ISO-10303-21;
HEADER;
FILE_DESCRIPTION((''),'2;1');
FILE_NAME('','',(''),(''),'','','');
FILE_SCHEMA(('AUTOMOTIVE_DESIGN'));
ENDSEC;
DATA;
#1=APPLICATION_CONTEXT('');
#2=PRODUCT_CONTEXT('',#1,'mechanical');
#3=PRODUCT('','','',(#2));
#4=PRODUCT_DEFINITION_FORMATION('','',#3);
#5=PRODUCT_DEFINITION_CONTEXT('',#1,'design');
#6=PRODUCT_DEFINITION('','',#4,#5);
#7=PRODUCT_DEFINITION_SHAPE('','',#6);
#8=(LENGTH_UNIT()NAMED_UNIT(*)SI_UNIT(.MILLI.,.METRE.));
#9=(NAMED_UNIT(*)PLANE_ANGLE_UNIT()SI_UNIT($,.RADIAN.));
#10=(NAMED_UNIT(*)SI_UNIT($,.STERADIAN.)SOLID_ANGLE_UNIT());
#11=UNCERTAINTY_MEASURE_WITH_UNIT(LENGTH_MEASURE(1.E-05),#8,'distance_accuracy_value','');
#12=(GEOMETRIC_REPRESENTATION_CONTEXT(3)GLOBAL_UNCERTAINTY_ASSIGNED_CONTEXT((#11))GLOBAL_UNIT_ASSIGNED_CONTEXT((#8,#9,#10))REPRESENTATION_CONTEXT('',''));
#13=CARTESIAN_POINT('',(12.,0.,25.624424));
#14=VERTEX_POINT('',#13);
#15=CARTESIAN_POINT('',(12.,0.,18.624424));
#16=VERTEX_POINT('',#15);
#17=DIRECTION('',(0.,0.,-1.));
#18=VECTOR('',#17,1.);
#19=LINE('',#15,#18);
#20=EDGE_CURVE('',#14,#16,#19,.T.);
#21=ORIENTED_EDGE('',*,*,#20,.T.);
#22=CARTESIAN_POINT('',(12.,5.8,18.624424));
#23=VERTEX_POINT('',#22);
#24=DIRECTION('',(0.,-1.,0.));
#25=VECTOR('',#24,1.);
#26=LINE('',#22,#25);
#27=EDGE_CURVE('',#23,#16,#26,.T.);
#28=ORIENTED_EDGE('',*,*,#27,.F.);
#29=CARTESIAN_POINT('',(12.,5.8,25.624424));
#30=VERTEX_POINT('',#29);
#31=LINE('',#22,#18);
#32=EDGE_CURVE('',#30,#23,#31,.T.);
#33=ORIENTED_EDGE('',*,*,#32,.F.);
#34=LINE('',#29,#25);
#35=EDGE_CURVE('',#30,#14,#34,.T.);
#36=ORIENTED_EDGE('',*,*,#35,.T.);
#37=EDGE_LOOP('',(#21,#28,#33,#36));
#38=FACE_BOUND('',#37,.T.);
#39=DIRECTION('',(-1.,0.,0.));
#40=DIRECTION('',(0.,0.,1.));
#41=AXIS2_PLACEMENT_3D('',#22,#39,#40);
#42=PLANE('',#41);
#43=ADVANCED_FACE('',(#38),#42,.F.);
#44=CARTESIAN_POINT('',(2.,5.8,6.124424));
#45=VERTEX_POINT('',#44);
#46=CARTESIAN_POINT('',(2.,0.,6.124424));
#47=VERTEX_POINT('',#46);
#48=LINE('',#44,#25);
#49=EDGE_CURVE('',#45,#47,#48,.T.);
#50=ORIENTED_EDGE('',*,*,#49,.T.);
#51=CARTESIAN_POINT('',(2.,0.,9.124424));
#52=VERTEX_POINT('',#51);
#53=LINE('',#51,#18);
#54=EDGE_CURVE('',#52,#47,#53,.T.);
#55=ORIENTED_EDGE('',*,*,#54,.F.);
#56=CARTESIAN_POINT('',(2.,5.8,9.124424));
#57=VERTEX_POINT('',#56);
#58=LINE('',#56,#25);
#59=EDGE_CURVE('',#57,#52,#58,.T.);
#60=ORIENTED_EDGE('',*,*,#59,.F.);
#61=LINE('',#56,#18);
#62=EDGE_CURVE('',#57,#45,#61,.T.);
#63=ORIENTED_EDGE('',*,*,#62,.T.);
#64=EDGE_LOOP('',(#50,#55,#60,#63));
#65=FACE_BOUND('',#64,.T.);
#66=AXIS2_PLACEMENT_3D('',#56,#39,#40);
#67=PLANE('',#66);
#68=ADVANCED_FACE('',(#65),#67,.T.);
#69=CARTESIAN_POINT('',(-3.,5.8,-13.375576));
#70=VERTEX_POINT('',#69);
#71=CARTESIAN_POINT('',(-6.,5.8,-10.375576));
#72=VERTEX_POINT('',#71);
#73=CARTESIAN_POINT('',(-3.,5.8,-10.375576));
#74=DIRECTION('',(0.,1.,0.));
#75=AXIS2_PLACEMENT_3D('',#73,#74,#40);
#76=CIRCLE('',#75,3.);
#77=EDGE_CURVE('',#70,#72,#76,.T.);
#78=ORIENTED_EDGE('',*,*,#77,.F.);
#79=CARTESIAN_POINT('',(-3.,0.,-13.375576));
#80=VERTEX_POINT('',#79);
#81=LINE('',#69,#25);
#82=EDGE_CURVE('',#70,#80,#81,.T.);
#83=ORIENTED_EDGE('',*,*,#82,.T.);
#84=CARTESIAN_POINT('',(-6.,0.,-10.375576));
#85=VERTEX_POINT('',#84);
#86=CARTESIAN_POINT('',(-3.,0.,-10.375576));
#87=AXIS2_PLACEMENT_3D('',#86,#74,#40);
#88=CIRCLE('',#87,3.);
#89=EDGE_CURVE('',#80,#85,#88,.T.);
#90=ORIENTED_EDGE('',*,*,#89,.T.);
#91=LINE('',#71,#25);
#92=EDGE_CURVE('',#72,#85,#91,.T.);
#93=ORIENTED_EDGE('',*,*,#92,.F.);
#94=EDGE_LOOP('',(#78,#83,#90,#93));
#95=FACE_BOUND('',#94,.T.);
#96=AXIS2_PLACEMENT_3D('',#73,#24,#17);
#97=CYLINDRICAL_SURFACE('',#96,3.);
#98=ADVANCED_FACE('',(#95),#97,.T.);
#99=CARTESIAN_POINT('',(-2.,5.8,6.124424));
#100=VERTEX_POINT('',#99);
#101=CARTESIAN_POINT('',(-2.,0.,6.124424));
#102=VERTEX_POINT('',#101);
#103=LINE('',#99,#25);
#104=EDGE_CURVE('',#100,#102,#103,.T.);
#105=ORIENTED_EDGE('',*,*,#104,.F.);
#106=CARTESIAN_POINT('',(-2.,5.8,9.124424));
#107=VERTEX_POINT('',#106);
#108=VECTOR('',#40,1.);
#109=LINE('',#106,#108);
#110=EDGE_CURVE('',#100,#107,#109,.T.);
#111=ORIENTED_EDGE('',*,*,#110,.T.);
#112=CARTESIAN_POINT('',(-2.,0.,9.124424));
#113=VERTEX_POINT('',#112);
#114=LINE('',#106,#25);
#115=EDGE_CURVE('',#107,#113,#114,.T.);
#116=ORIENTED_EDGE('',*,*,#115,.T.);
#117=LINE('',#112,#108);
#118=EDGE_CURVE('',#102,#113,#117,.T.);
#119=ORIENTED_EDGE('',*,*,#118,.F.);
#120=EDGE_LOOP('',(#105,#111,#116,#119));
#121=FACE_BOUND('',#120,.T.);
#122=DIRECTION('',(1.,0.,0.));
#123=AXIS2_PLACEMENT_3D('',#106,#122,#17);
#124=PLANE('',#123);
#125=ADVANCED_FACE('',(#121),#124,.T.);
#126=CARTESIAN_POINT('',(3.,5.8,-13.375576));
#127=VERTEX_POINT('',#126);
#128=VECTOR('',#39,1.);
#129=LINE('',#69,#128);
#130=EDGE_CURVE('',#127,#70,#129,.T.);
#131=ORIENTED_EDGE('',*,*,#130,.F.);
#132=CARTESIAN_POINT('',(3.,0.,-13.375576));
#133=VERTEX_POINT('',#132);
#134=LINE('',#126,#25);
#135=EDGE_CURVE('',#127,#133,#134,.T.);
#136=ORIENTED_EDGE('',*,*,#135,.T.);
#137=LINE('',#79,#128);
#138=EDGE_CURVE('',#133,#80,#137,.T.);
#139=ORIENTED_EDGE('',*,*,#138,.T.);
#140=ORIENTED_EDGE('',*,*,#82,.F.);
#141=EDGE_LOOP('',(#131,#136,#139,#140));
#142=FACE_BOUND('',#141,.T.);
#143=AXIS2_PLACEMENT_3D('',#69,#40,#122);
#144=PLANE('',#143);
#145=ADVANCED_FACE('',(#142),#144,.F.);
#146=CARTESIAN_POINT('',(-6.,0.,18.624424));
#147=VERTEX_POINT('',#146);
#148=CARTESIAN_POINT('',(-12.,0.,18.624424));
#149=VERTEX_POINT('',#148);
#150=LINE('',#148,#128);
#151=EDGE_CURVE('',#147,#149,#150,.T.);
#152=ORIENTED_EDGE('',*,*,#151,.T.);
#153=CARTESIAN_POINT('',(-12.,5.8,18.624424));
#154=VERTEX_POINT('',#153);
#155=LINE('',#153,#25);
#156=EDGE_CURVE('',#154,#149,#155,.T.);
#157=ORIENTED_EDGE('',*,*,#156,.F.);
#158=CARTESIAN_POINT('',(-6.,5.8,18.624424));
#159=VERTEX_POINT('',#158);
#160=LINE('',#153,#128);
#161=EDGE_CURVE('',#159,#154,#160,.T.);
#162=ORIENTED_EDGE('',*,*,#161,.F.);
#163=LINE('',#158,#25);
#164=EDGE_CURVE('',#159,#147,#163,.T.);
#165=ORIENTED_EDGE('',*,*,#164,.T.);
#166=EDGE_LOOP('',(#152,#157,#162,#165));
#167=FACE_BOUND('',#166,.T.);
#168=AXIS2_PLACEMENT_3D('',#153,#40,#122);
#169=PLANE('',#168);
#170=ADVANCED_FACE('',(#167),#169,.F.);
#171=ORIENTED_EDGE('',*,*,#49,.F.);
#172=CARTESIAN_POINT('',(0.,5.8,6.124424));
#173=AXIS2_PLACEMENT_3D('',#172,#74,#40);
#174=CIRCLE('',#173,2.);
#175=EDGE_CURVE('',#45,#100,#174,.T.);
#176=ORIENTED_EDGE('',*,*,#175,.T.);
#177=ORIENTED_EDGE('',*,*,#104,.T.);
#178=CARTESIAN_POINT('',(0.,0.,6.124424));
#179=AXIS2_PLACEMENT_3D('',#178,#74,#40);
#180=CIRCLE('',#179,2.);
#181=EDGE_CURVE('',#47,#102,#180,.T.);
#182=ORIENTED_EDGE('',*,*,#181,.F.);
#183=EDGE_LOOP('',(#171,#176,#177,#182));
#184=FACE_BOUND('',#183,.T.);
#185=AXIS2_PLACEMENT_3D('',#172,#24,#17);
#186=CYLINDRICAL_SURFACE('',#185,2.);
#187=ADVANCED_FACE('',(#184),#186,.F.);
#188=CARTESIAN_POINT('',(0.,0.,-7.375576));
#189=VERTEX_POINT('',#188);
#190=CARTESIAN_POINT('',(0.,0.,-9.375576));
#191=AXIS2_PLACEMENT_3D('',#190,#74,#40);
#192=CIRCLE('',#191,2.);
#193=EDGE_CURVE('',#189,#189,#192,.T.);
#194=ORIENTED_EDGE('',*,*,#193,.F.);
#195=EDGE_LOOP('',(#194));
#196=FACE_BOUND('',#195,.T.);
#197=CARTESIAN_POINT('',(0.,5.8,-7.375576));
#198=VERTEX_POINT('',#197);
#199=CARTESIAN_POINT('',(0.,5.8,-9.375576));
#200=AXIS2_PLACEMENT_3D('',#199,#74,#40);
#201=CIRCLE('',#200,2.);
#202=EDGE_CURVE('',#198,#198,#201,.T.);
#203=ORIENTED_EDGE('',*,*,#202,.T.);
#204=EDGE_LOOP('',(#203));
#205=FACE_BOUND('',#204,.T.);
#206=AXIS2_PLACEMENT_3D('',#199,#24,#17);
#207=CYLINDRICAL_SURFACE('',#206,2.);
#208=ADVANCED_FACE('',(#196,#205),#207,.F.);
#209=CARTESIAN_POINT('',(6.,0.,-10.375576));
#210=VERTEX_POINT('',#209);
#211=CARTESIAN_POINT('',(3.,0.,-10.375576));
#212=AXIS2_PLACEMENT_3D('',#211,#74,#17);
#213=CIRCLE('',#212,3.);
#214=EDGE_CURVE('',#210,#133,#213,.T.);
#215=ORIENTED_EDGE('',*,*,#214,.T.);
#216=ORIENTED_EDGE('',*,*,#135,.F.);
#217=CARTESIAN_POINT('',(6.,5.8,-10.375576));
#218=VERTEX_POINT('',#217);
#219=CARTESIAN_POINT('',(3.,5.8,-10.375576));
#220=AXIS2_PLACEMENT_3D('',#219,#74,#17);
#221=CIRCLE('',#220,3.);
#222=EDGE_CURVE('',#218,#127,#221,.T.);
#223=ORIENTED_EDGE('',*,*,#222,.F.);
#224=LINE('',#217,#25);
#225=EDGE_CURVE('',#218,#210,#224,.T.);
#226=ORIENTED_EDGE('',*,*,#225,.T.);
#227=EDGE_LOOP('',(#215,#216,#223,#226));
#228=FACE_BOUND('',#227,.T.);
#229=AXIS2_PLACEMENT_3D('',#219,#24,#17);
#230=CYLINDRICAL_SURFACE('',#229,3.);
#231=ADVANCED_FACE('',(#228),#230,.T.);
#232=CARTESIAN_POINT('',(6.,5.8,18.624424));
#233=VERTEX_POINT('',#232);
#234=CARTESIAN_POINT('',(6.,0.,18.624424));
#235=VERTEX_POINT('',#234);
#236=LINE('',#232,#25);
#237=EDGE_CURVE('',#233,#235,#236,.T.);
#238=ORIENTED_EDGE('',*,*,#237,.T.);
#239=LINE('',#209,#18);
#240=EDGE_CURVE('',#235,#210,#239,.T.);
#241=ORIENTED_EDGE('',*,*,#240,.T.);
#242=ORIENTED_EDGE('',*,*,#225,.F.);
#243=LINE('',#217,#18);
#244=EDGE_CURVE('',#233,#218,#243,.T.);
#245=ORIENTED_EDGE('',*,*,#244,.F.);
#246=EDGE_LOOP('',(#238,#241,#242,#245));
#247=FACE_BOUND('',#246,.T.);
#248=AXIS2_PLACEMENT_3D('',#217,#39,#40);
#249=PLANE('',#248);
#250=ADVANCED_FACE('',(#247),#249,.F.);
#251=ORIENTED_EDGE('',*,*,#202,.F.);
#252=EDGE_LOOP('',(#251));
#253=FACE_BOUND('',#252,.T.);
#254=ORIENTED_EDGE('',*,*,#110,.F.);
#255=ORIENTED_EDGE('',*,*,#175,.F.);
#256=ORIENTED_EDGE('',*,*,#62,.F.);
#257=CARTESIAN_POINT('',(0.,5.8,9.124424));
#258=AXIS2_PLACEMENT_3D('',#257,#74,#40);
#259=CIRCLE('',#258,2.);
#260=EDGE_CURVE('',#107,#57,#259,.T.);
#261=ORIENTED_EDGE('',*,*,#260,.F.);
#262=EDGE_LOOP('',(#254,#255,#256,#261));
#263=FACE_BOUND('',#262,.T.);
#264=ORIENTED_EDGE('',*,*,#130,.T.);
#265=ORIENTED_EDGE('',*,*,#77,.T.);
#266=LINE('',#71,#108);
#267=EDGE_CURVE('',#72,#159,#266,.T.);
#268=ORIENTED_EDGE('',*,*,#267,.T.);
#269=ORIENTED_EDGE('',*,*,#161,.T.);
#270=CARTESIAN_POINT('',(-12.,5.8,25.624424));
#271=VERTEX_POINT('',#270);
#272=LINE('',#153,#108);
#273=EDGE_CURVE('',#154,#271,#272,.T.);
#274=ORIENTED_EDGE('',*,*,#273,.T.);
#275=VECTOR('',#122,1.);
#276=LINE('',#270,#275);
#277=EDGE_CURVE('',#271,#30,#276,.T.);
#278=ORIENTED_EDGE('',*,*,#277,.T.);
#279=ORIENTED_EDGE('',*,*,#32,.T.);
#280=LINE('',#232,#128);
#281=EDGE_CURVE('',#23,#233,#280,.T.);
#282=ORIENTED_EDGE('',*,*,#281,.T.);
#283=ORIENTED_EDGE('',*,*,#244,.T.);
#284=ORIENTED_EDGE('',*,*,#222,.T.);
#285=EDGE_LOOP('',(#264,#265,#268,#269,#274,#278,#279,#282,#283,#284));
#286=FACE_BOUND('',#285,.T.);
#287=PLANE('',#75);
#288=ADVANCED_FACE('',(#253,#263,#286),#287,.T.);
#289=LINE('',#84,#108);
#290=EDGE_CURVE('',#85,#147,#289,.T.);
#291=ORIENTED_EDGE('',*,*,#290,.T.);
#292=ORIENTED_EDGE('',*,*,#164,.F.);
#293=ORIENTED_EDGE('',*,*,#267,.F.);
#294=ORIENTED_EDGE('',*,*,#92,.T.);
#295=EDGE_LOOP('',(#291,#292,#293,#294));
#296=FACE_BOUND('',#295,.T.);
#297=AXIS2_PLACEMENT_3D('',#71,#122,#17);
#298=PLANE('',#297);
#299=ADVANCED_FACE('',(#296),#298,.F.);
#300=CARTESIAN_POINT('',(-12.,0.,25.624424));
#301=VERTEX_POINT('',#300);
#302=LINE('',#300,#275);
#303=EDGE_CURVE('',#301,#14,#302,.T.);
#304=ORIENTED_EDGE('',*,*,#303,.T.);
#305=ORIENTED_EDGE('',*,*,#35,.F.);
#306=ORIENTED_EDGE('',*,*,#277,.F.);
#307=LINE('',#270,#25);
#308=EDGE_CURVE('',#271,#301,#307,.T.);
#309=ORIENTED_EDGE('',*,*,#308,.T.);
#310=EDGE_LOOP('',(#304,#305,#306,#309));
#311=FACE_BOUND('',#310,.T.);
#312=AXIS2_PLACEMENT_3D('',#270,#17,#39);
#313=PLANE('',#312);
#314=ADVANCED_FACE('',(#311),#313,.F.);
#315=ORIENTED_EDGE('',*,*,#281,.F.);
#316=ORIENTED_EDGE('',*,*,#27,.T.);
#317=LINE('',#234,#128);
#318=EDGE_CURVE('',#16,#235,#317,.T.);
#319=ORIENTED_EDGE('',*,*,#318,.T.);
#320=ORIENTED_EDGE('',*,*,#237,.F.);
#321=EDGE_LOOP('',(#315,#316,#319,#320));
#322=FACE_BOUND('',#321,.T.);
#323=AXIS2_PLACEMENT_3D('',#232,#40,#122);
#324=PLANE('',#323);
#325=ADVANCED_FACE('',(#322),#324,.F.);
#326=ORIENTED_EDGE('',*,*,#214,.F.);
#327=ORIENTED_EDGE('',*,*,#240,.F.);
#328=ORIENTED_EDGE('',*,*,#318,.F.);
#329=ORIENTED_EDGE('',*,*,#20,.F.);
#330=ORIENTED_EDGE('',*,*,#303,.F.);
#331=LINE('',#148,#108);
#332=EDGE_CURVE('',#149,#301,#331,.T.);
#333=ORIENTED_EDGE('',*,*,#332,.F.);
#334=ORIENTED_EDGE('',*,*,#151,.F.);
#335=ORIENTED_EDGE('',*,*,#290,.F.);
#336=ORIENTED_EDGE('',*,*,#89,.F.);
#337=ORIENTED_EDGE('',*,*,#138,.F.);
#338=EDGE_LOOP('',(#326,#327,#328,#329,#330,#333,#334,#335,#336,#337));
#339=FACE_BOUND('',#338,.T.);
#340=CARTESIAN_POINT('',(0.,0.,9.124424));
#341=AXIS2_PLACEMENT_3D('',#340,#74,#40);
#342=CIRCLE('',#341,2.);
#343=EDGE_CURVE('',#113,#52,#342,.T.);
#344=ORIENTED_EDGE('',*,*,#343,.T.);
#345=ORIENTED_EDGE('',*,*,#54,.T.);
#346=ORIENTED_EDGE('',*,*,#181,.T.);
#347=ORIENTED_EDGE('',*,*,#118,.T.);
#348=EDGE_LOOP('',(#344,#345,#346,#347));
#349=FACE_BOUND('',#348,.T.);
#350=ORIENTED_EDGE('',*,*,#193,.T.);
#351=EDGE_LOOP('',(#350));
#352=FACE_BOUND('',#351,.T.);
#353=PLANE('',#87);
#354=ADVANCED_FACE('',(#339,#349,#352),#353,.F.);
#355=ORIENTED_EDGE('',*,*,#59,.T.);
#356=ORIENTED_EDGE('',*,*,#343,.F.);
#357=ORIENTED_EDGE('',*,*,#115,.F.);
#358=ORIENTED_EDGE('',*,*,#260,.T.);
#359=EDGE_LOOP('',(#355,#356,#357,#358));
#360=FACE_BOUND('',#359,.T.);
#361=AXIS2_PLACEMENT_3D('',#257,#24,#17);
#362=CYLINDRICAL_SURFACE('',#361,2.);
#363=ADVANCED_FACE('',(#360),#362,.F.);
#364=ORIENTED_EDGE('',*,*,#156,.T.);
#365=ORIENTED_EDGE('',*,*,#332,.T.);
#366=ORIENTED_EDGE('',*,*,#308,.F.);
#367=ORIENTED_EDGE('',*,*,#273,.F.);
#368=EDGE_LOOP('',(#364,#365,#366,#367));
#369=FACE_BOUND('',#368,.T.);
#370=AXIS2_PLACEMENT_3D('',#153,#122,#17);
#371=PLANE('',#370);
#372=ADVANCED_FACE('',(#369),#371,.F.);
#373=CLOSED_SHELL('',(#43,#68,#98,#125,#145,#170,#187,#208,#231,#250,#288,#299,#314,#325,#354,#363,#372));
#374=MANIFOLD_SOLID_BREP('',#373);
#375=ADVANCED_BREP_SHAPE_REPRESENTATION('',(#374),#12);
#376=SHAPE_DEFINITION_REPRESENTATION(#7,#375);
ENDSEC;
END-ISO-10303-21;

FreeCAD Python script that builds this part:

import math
import FreeCAD as App
import Part
import Sketcher

doc = App.newDocument("Part")
params = doc.addObject("Spreadsheet::Sheet", "Params")
for row, (alias, value) in enumerate([
    ("sketch1_diameter", "4 mm"),
    ("sketch1_radius", "3 mm"),
    ("sketch1_width", "6 mm"),
    ("sketch1_height", "29 mm"),
    ("sketch1_height2", "7 mm"),
    ("pad1_length", "5.8 mm"),
], start=1):
    params.set(f"A{row}", alias)
    params.set(f"B{row}", "=" + value)
    params.setAlias(f"B{row}", alias)

body = doc.addObject("PartDesign::Body", "Body")

# Sketch on XZ plane
sketch1 = body.newObject("Sketcher::SketchObject", "Sketch")
sketch1.AttachmentSupport = (doc.getObject("XZ_Plane"), [""])
sketch1.MapMode = "FlatFace"
sketch1.addGeometry(Part.LineSegment(App.Vector(12, 18.6, 0), App.Vector(6, 18.6, 0)), False)
sketch1.addGeometry(Part.LineSegment(App.Vector(6, 18.6, 0), App.Vector(6, -10.4, 0)), False)
sketch1.addGeometry(Part.ArcOfCircle(Part.Circle(App.Vector(3, -10.4, 0), App.Vector(0, 0, 1), 3), math.radians(-90), math.radians(0)), False)
sketch1.addGeometry(Part.LineSegment(App.Vector(3, -13.4, 0), App.Vector(-3, -13.4, 0)), False)
sketch1.addGeometry(Part.ArcOfCircle(Part.Circle(App.Vector(-3, -10.4, 0), App.Vector(0, 0, 1), 3), math.radians(180), math.radians(270)), False)
sketch1.addGeometry(Part.LineSegment(App.Vector(-6, -10.4, 0), App.Vector(-6, 18.6, 0)), False)
sketch1.addGeometry(Part.LineSegment(App.Vector(-6, 18.6, 0), App.Vector(-12, 18.6, 0)), False)
sketch1.addGeometry(Part.LineSegment(App.Vector(-12, 18.6, 0), App.Vector(-12, 25.6, 0)), False)
sketch1.addGeometry(Part.LineSegment(App.Vector(-12, 25.6, 0), App.Vector(12, 25.6, 0)), False)
sketch1.addGeometry(Part.LineSegment(App.Vector(12, 25.6, 0), App.Vector(12, 18.6, 0)), False)
sketch1.addGeometry(Part.LineSegment(App.Vector(-2, 9.1, 0), App.Vector(-2, 6.1, 0)), False)
sketch1.addGeometry(Part.ArcOfCircle(Part.Circle(App.Vector(0, 6.1, 0), App.Vector(0, 0, 1), 2), math.radians(180), math.radians(360)), False)
sketch1.addGeometry(Part.LineSegment(App.Vector(2, 6.1, 0), App.Vector(2, 9.1, 0)), False)
sketch1.addGeometry(Part.ArcOfCircle(Part.Circle(App.Vector(0, 9.1, 0), App.Vector(0, 0, 1), 2), math.radians(0), math.radians(180)), False)
sketch1.addGeometry(Part.Circle(App.Vector(0, -9.4, 0), App.Vector(0, 0, 1), 2), False)
sketch1.addConstraint(Sketcher.Constraint("Coincident", 0, 2, 1, 1))
sketch1.addConstraint(Sketcher.Constraint("Tangent", 1, 2, 2, 2))
sketch1.addConstraint(Sketcher.Constraint("Tangent", 2, 1, 3, 1))
sketch1.addConstraint(Sketcher.Constraint("Tangent", 3, 2, 4, 2))
sketch1.addConstraint(Sketcher.Constraint("Tangent", 4, 1, 5, 1))
sketch1.addConstraint(Sketcher.Constraint("Coincident", 5, 2, 6, 1))
sketch1.addConstraint(Sketcher.Constraint("Coincident", 6, 2, 7, 1))
sketch1.addConstraint(Sketcher.Constraint("Coincident", 7, 2, 8, 1))
sketch1.addConstraint(Sketcher.Constraint("Coincident", 8, 2, 9, 1))
sketch1.addConstraint(Sketcher.Constraint("Coincident", 9, 2, 0, 1))
sketch1.addConstraint(Sketcher.Constraint("Tangent", 10, 2, 11, 1))
sketch1.addConstraint(Sketcher.Constraint("Tangent", 11, 2, 12, 1))
sketch1.addConstraint(Sketcher.Constraint("Tangent", 12, 2, 13, 1))
sketch1.addConstraint(Sketcher.Constraint("Tangent", 13, 2, 10, 1))
sketch1.addConstraint(Sketcher.Constraint("Horizontal", 0))
sketch1.addConstraint(Sketcher.Constraint("Vertical", 1))
sketch1.addConstraint(Sketcher.Constraint("Horizontal", 3))
sketch1.addConstraint(Sketcher.Constraint("Vertical", 5))
sketch1.addConstraint(Sketcher.Constraint("Horizontal", 6))
sketch1.addConstraint(Sketcher.Constraint("Vertical", 7))
sketch1.addConstraint(Sketcher.Constraint("Horizontal", 8))
sketch1.addConstraint(Sketcher.Constraint("Vertical", 9))
sketch1.addConstraint(Sketcher.Constraint("Vertical", 10))
sketch1.addConstraint(Sketcher.Constraint("Vertical", 12))
sketch1.addConstraint(Sketcher.Constraint("Equal", 2, 4))
sketch1.addConstraint(Sketcher.Constraint("Equal", 13, 14))
sketch1.addConstraint(Sketcher.Constraint("Symmetric", 0, 2, 5, 2, -2))
sketch1.addConstraint(Sketcher.Constraint("PointOnObject", 11, 3, -2))
sketch1.addConstraint(Sketcher.Constraint("PointOnObject", 14, 3, -2))
sketch1.addConstraint(Sketcher.Constraint("Equal", 0, 3))
sketch1.addConstraint(Sketcher.Constraint("Equal", 3, 6))
sketch1.addConstraint(Sketcher.Constraint("Diameter", 14, 4.0))
sketch1.addConstraint(Sketcher.Constraint("Radius", 2, 3.0))
sketch1.addConstraint(Sketcher.Constraint("DistanceX", 0, 2, 0, 1, 6.0))
sketch1.addConstraint(Sketcher.Constraint("DistanceY", 1, 2, 1, 1, 29.0))
sketch1.addConstraint(Sketcher.Constraint("DistanceY", 7, 1, 7, 2, 7.0))
sketch1.addConstraint(Sketcher.Constraint("DistanceY", 10, 2, 10, 1, 3.0))
sketch1.addConstraint(Sketcher.Constraint("DistanceY", 2, 3, 14, 3, 1.0))
sketch1.addConstraint(Sketcher.Constraint("DistanceY", 2, 3, 11, 3, 16.5))
sketch1.addConstraint(Sketcher.Constraint("DistanceY", 2, 3, -1, 1, 10.375576))
sketch1.setExpression("Constraints[31]", "Params.sketch1_diameter")
sketch1.setExpression("Constraints[32]", "Params.sketch1_radius")
sketch1.setExpression("Constraints[33]", "Params.sketch1_width")
sketch1.setExpression("Constraints[34]", "Params.sketch1_height")
sketch1.setExpression("Constraints[35]", "Params.sketch1_height2")
pad1 = body.newObject("PartDesign::Pad", "Pad")
pad1.Profile = sketch1
pad1.setExpression("Length", "Params.pad1_length")
pad1.Reversed = True

doc.recompute()
